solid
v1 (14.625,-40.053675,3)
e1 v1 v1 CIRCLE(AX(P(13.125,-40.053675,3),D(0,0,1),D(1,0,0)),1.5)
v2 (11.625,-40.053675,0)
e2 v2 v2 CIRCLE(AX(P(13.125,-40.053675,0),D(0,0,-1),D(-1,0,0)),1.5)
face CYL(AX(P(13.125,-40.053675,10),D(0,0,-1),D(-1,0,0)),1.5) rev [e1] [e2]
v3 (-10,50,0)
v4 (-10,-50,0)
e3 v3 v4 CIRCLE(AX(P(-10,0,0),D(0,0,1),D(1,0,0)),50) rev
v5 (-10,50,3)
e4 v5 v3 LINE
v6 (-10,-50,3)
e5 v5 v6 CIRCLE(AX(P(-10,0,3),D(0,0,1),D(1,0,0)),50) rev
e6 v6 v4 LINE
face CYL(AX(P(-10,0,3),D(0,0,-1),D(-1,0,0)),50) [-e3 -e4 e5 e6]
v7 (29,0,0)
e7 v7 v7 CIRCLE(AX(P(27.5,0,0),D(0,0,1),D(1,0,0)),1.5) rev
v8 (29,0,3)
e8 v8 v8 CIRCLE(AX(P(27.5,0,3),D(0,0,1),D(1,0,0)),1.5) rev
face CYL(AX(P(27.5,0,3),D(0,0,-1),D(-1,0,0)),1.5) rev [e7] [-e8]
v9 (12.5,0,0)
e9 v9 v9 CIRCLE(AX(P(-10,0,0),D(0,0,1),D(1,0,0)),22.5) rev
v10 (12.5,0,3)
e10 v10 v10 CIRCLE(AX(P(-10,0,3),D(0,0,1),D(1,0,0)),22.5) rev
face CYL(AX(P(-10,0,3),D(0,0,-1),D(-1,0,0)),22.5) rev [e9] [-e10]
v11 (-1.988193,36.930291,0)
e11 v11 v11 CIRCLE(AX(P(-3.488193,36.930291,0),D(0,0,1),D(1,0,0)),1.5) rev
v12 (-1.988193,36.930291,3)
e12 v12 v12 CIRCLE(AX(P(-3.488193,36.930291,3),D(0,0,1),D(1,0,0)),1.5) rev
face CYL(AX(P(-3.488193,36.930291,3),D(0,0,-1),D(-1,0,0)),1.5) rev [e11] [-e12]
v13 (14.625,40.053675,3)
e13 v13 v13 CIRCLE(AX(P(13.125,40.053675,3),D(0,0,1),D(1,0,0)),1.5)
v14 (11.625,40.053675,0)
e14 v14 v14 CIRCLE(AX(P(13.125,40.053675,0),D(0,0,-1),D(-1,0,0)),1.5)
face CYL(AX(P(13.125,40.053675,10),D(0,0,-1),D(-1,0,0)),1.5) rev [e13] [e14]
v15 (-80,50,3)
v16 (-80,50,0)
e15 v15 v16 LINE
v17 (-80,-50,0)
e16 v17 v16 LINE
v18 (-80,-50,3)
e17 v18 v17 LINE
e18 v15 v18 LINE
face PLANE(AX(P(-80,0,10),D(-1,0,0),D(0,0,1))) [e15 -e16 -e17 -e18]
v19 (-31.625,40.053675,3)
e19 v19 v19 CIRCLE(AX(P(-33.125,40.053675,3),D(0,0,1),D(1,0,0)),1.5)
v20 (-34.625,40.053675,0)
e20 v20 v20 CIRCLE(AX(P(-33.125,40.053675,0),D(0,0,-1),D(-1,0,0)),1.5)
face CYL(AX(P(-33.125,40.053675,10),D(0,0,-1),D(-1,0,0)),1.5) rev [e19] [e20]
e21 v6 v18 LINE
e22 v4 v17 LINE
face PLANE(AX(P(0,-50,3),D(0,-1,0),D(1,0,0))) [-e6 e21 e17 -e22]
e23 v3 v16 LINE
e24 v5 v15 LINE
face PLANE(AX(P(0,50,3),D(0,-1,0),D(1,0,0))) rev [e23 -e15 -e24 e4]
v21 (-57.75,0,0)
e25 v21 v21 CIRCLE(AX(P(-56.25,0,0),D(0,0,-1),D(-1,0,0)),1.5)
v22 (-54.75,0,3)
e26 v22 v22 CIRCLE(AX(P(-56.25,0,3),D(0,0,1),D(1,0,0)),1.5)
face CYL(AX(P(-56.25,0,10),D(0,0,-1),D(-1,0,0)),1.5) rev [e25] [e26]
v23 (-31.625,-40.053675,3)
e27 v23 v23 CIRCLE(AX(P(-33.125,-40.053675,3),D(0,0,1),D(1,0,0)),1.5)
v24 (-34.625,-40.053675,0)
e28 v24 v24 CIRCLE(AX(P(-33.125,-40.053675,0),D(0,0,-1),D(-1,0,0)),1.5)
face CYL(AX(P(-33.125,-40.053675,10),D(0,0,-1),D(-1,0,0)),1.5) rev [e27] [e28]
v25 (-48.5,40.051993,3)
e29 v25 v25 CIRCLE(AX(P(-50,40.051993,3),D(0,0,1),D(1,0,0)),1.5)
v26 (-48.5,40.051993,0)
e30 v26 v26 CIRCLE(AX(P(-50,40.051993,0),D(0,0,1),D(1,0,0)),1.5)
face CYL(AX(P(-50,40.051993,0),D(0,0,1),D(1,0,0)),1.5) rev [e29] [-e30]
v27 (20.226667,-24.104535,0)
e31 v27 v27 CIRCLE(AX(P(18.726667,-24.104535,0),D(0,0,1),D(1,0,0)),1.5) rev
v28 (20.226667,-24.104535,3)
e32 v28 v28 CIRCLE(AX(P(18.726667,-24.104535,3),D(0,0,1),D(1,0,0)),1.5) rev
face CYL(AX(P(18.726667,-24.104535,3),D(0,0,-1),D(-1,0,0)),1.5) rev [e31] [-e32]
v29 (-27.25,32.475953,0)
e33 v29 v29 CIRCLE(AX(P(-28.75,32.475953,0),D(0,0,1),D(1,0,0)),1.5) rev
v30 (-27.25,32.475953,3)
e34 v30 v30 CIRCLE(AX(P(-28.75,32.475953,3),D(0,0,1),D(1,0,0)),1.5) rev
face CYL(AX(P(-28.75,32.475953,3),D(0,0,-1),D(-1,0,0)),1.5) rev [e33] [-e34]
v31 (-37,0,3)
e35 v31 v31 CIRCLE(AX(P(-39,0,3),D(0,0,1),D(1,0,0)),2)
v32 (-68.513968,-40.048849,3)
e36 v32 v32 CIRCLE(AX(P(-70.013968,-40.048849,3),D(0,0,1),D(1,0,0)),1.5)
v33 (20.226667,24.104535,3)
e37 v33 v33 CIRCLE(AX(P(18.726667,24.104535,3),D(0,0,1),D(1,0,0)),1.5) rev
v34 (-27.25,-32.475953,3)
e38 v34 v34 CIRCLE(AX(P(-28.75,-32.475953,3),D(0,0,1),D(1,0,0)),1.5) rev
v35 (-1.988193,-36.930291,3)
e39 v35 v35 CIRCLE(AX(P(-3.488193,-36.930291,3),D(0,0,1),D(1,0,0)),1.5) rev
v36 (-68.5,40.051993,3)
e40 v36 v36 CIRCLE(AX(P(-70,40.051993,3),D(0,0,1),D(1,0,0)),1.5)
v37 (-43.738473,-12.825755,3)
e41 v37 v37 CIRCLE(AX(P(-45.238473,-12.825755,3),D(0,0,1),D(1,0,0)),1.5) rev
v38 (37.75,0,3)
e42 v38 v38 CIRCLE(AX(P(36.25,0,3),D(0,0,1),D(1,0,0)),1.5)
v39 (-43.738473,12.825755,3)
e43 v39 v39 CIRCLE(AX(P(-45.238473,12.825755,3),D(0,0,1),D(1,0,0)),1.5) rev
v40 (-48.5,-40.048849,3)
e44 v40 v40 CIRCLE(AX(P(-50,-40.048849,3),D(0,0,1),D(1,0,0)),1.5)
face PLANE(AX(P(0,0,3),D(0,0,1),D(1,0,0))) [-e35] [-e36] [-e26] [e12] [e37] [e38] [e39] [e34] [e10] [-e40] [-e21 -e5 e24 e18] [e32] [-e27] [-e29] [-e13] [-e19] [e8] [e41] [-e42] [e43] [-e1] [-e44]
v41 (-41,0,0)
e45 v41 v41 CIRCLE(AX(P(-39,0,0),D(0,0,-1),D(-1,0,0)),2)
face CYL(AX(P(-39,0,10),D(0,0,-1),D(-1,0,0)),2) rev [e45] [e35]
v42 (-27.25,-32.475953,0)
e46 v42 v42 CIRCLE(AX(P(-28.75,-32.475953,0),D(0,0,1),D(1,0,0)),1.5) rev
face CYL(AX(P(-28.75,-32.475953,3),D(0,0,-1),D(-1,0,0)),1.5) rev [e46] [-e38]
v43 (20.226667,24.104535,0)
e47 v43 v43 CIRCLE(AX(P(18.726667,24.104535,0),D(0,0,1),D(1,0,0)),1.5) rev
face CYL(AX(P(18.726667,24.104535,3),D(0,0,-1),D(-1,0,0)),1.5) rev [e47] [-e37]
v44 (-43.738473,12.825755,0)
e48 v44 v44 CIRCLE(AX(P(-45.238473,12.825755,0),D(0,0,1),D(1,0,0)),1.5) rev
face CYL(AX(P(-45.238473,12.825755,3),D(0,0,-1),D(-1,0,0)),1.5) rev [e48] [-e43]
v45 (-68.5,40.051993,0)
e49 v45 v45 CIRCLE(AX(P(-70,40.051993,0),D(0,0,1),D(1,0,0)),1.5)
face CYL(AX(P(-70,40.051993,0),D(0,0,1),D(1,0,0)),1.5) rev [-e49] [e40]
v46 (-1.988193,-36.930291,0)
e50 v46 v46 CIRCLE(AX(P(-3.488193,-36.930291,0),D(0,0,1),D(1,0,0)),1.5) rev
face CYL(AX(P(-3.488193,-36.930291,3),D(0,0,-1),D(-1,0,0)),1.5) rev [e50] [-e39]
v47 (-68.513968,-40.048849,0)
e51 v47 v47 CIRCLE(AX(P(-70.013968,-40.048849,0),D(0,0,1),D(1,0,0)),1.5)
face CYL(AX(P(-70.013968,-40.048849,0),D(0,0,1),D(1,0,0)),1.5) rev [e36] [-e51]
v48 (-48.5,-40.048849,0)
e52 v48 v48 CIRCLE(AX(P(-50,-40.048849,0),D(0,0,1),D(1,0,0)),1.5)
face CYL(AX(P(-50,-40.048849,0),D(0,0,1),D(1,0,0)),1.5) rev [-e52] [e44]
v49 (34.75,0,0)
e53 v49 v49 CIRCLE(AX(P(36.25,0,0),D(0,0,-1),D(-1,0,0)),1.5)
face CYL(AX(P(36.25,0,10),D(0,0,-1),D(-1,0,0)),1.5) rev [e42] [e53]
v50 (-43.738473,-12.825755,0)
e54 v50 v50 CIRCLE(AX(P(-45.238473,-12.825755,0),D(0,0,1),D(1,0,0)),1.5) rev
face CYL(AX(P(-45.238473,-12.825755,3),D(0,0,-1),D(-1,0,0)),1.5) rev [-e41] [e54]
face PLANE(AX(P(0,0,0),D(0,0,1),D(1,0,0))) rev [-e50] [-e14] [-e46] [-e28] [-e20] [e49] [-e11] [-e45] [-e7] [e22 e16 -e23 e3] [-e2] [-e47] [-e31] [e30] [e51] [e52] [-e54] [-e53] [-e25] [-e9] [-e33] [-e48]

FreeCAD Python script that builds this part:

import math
import FreeCAD as App
import Part
import Sketcher
from FreeCAD import Vector
Q = App.Units.Quantity

doc = App.newDocument("Part")
body = doc.addObject("PartDesign::Body", "Body")

# Sketch on XY plane
sketch1 = doc.addObject("Sketcher::SketchObject", "Sketch")
body.addObject(sketch1)
sketch1.AttachmentSupport = (doc.XY_Plane, [""])
sketch1.MapMode = "FlatFace"
sketch1.addGeometry(Part.LineSegment(Vector(-10, 50, 0), Vector(-350, 50, 0)), False)
sketch1.addGeometry(Part.ArcOfCircle(Part.Circle(Vector(-350, 0, 0), Vector(0, 0, 1), 50), math.radians(90), math.radians(270)), False)
sketch1.addGeometry(Part.LineSegment(Vector(-350, -50, 0), Vector(-10, -50, 0)), False)
sketch1.addGeometry(Part.ArcOfCircle(Part.Circle(Vector(-10, 0, 0), Vector(0, 0, 1), 50), math.radians(-90), math.radians(90)), False)
sketch1.addGeometry(Part.Circle(Vector(-356.5, -36.9, 0), Vector(0, 0, 1), 1.5), False)
sketch1.addGeometry(Part.Circle(Vector(-331.2, -32.5, 0), Vector(0, 0, 1), 1.5), False)
sketch1.addGeometry(Part.Circle(Vector(-378.7, -24.1, 0), Vector(0, 0, 1), 1.5), False)
sketch1.addGeometry(Part.Circle(Vector(-314.8, -12.8, 0), Vector(0, 0, 1), 1.5), False)
sketch1.addGeometry(Part.Circle(Vector(-28.8, -32.5, 0), Vector(0, 0, 1), 1.5), False)
sketch1.addGeometry(Part.Circle(Vector(-3.5, -36.9, 0), Vector(0, 0, 1), 1.5), False)
sketch1.addGeometry(Part.Circle(Vector(18.7, -24.1, 0), Vector(0, 0, 1), 1.5), False)
sketch1.addGeometry(Part.Circle(Vector(-45.2, -12.8, 0), Vector(0, 0, 1), 1.5), False)
sketch1.addGeometry(Part.Circle(Vector(-387.5, 0, 0), Vector(0, 0, 1), 1.5), False)
sketch1.addGeometry(Part.Circle(Vector(-350, 0, 0), Vector(0, 0, 1), 22.5), False)
sketch1.addGeometry(Part.Circle(Vector(-314.8, 12.8, 0), Vector(0, 0, 1), 1.5), False)
sketch1.addGeometry(Part.Circle(Vector(-378.7, 24.1, 0), Vector(0, 0, 1), 1.5), False)
sketch1.addGeometry(Part.Circle(Vector(-356.5, 36.9, 0), Vector(0, 0, 1), 1.5), False)
sketch1.addGeometry(Part.Circle(Vector(-331.2, 32.5, 0), Vector(0, 0, 1), 1.5), False)
sketch1.addGeometry(Part.Circle(Vector(-10, 0, 0), Vector(0, 0, 1), 22.5), False)
sketch1.addGeometry(Part.Circle(Vector(27.5, 0, 0), Vector(0, 0, 1), 1.5), False)
sketch1.addGeometry(Part.Circle(Vector(-45.2, 12.8, 0), Vector(0, 0, 1), 1.5), False)
sketch1.addGeometry(Part.Circle(Vector(18.7, 24.1, 0), Vector(0, 0, 1), 1.5), False)
sketch1.addGeometry(Part.Circle(Vector(-28.8, 32.5, 0), Vector(0, 0, 1), 1.5), False)
sketch1.addGeometry(Part.Circle(Vector(-3.5, 36.9, 0), Vector(0, 0, 1), 1.5), False)
sketch1.addConstraint(Sketcher.Constraint("Tangent", 0, 2, 1, 1))
sketch1.addConstraint(Sketcher.Constraint("Tangent", 1, 2, 2, 1))
sketch1.addConstraint(Sketcher.Constraint("Tangent", 2, 2, 3, 1))
sketch1.addConstraint(Sketcher.Constraint("Tangent", 3, 2, 0, 1))
sketch1.addConstraint(Sketcher.Constraint("Horizontal", 0))
sketch1.addConstraint(Sketcher.Constraint("Horizontal", 2))
sketch1.addConstraint(Sketcher.Constraint("Coincident", 13, 3, 1, 3))
sketch1.addConstraint(Sketcher.Constraint("Coincident", 18, 3, 3, 3))
sketch1.addConstraint(Sketcher.Constraint("Equal", 4, 5))
sketch1.addConstraint(Sketcher.Constraint("Equal", 5, 6))
sketch1.addConstraint(Sketcher.Constraint("Equal", 6, 7))
sketch1.addConstraint(Sketcher.Constraint("Equal", 7, 8))
sketch1.addConstraint(Sketcher.Constraint("Equal", 8, 9))
sketch1.addConstraint(Sketcher.Constraint("Equal", 9, 10))
sketch1.addConstraint(Sketcher.Constraint("Equal", 10, 11))
sketch1.addConstraint(Sketcher.Constraint("Equal", 11, 12))
sketch1.addConstraint(Sketcher.Constraint("Equal", 12, 14))
sketch1.addConstraint(Sketcher.Constraint("Equal", 14, 15))
sketch1.addConstraint(Sketcher.Constraint("Equal", 15, 16))
sketch1.addConstraint(Sketcher.Constraint("Equal", 16, 17))
sketch1.addConstraint(Sketcher.Constraint("Equal", 13, 18))
sketch1.addConstraint(Sketcher.Constraint("Equal", 17, 19))
sketch1.addConstraint(Sketcher.Constraint("Equal", 19, 20))
sketch1.addConstraint(Sketcher.Constraint("Equal", 20, 21))
sketch1.addConstraint(Sketcher.Constraint("Equal", 21, 22))
sketch1.addConstraint(Sketcher.Constraint("Equal", 22, 23))
sketch1.addConstraint(Sketcher.Constraint("Symmetric", 7, 3, 14, 3, -1))
sketch1.addConstraint(Sketcher.Constraint("Symmetric", 6, 3, 15, 3, -1))
sketch1.addConstraint(Sketcher.Constraint("Symmetric", 4, 3, 16, 3, -1))
sketch1.addConstraint(Sketcher.Constraint("Symmetric", 5, 3, 17, 3, -1))
sketch1.addConstraint(Sketcher.Constraint("Symmetric", 11, 3, 20, 3, -1))
sketch1.addConstraint(Sketcher.Constraint("Symmetric", 10, 3, 21, 3, -1))
sketch1.addConstraint(Sketcher.Constraint("Symmetric", 8, 3, 22, 3, -1))
sketch1.addConstraint(Sketcher.Constraint("Symmetric", 9, 3, 23, 3, -1))
sketch1.addConstraint(Sketcher.Constraint("PointOnObject", 1, 3, -1))
sketch1.addConstraint(Sketcher.Constraint("PointOnObject", 12, 3, -1))
sketch1.addConstraint(Sketcher.Constraint("PointOnObject", 19, 3, -1))
sketch1.addConstraint(Sketcher.Constraint("Horizontal", 5, 3, 8, 3))
sketch1.addConstraint(Sketcher.Constraint("Horizontal", 4, 3, 9, 3))
sketch1.addConstraint(Sketcher.Constraint("Horizontal", 6, 3, 10, 3))
sketch1.addConstraint(Sketcher.Constraint("Horizontal", 7, 3, 11, 3))
sketch1.addConstraint(Sketcher.Constraint("Diameter", 4, Q("3 mm")))
sketch1.addConstraint(Sketcher.Constraint("Diameter", 13, Q("45 mm")))
sketch1.addConstraint(Sketcher.Constraint("Radius", 1, Q("50 mm")))
sketch1.addConstraint(Sketcher.Constraint("DistanceX", 0, 2, 0, 1, Q("340 mm")))
sketch1.addConstraint(Sketcher.Constraint("DistanceX", 1, 3, -1, 1, Q("350 mm")))
sketch1.addConstraint(Sketcher.Constraint("DistanceX", 12, 3, -1, 1, Q("387.5 mm")))
sketch1.addConstraint(Sketcher.Constraint("DistanceX", -1, 1, 19, 3, Q("27.5 mm")))
sketch1.addConstraint(Sketcher.Constraint("DistanceX", 5, 3, 8, 3, Q("302.5 mm")))
sketch1.addConstraint(Sketcher.Constraint("DistanceX", 5, 3, -1, 1, Q("331.25 mm")))
sketch1.addConstraint(Sketcher.Constraint("DistanceY", 4, 3, -1, 1, Q("36.930291 mm")))
sketch1.addConstraint(Sketcher.Constraint("DistanceY", 4, 3, 5, 3, Q("4.454338 mm")))
sketch1.addConstraint(Sketcher.Constraint("DistanceX", 6, 3, 4, 3, Q("22.21486 mm")))
sketch1.addConstraint(Sketcher.Constraint("DistanceX", 4, 3, 7, 3, Q("41.75028 mm")))
sketch1.addConstraint(Sketcher.Constraint("DistanceY", 6, 3, 7, 3, Q("11.27878 mm")))
sketch1.addConstraint(Sketcher.Constraint("DistanceX", 9, 3, 10, 3, Q("22.21486 mm")))
sketch1.addConstraint(Sketcher.Constraint("DistanceX", 11, 3, 9, 3, Q("41.75028 mm")))
sketch1.addConstraint(Sketcher.Constraint("DistanceY", 7, 3, 14, 3, Q("25.651511 mm")))
sketch1.addConstraint(Sketcher.Constraint("DistanceX", 4, 3, -1, 1, Q("356.511807 mm")))
sketch1.addConstraint(Sketcher.Constraint("DistanceX", 9, 3, -1, 1, Q("3.488193 mm")))
pad1 = doc.addObject("PartDesign::Pad", "Pad")
body.addObject(pad1)
pad1.Profile = sketch1
pad1.Length = 3

# Sketch on XY plane
sketch2 = doc.addObject("Sketcher::SketchObject", "Sketch001")
body.addObject(sketch2)
sketch2.AttachmentSupport = (doc.XY_Plane, [""])
sketch2.MapMode = "FlatFace"
sketch2.addGeometry(Part.Circle(Vector(-39, 0, 0), Vector(0, 0, 1), 2), False)
sketch2.addGeometry(Part.Circle(Vector(-321, 0, 0), Vector(0, 0, 1), 1.8), False)
sketch2.addConstraint(Sketcher.Constraint("PointOnObject", 0, 3, -1))
sketch2.addConstraint(Sketcher.Constraint("PointOnObject", 1, 3, -1))
sketch2.addConstraint(Sketcher.Constraint("Diameter", 0, Q("4 mm")))
sketch2.addConstraint(Sketcher.Constraint("Diameter", 1, Q("3.5 mm")))
sketch2.addConstraint(Sketcher.Constraint("DistanceX", 0, 3, -1, 1, Q("39 mm")))
sketch2.addConstraint(Sketcher.Constraint("DistanceX", 1, 3, -1, 1, Q("321 mm")))
pocket1 = doc.addObject("PartDesign::Pocket", "Pocket")
body.addObject(pocket1)
pocket1.Profile = sketch2
pocket1.Length = 10
pocket1.Reversed = True

# Sketch on XY plane
sketch3 = doc.addObject("Sketcher::SketchObject", "Sketch002")
body.addObject(sketch3)
sketch3.AttachmentSupport = (doc.XY_Plane, [""])
sketch3.MapMode = "FlatFace"
sketch3.addGeometry(Part.LineSegment(Vector(-80, -50, 0), Vector(-350, -50, 0)), False)
sketch3.addGeometry(Part.ArcOfCircle(Part.Circle(Vector(-350, 0, 0), Vector(0, 0, 1), 50), math.radians(90), math.radians(270)), False)
sketch3.addGeometry(Part.LineSegment(Vector(-350, 50, 0), Vector(-80, 50, 0)), False)
sketch3.addGeometry(Part.LineSegment(Vector(-80, 50, 0), Vector(-80, -50, 0)), False)
sketch3.addGeometry(Part.Circle(Vector(-331.2, -32.5, 0), Vector(0, 0, 1), 1.5), False)
sketch3.addGeometry(Part.Circle(Vector(-314.8, -12.8, 0), Vector(0, 0, 1), 1.5), False)
sketch3.addGeometry(Part.Circle(Vector(-356.5, -36.9, 0), Vector(0, 0, 1), 1.5), False)
sketch3.addGeometry(Part.Circle(Vector(-378.7, -24.1, 0), Vector(0, 0, 1), 1.5), False)
sketch3.addGeometry(Part.Circle(Vector(-321, 0, 0), Vector(0, 0, 1), 1.8), False)
sketch3.addGeometry(Part.Circle(Vector(-314.8, 12.8, 0), Vector(0, 0, 1), 1.5), False)
sketch3.addGeometry(Part.Circle(Vector(-350, 0, 0), Vector(0, 0, 1), 22.5), False)
sketch3.addGeometry(Part.Circle(Vector(-331.2, 32.5, 0), Vector(0, 0, 1), 1.5), False)
sketch3.addGeometry(Part.Circle(Vector(-387.5, 0, 0), Vector(0, 0, 1), 1.5), False)
sketch3.addGeometry(Part.Circle(Vector(-356.5, 36.9, 0), Vector(0, 0, 1), 1.5), False)
sketch3.addGeometry(Part.Circle(Vector(-378.7, 24.1, 0), Vector(0, 0, 1), 1.5), False)
sketch3.addConstraint(Sketcher.Constraint("Tangent", 0, 2, 1, 2))
sketch3.addConstraint(Sketcher.Constraint("Tangent", 1, 1, 2, 1))
sketch3.addConstraint(Sketcher.Constraint("Coincident", 2, 2, 3, 1))
sketch3.addConstraint(Sketcher.Constraint("Coincident", 3, 2, 0, 1))
sketch3.addConstraint(Sketcher.Constraint("Horizontal", 0))
sketch3.addConstraint(Sketcher.Constraint("Horizontal", 2))
sketch3.addConstraint(Sketcher.Constraint("Vertical", 3))
sketch3.addConstraint(Sketcher.Constraint("Coincident", 10, 3, 1, 3))
sketch3.addConstraint(Sketcher.Constraint("Equal", 4, 5))
sketch3.addConstraint(Sketcher.Constraint("Equal", 5, 6))
sketch3.addConstraint(Sketcher.Constraint("Equal", 6, 7))
sketch3.addConstraint(Sketcher.Constraint("Equal", 7, 9))
sketch3.addConstraint(Sketcher.Constraint("Equal", 9, 11))
sketch3.addConstraint(Sketcher.Constraint("Equal", 11, 12))
sketch3.addConstraint(Sketcher.Constraint("Equal", 12, 13))
sketch3.addConstraint(Sketcher.Constraint("Equal", 13, 14))
sketch3.addConstraint(Sketcher.Constraint("Symmetric", 5, 3, 9, 3, -1))
sketch3.addConstraint(Sketcher.Constraint("Symmetric", 4, 3, 11, 3, -1))
sketch3.addConstraint(Sketcher.Constraint("Symmetric", 6, 3, 13, 3, -1))
sketch3.addConstraint(Sketcher.Constraint("Symmetric", 7, 3, 14, 3, -1))
sketch3.addConstraint(Sketcher.Constraint("PointOnObject", 1, 3, -1))
sketch3.addConstraint(Sketcher.Constraint("PointOnObject", 8, 3, -1))
sketch3.addConstraint(Sketcher.Constraint("PointOnObject", 12, 3, -1))
sketch3.addConstraint(Sketcher.Constraint("Diameter", 4, Q("3 mm")))
sketch3.addConstraint(Sketcher.Constraint("Diameter", 10, Q("45 mm")))
sketch3.addConstraint(Sketcher.Constraint("Radius", 1, Q("50 mm")))
sketch3.addConstraint(Sketcher.Constraint("Diameter", 8, Q("3.5 mm")))
sketch3.addConstraint(Sketcher.Constraint("DistanceX", 0, 2, 0, 1, Q("270 mm")))
sketch3.addConstraint(Sketcher.Constraint("DistanceX", 1, 3, -1, 1, Q("350 mm")))
sketch3.addConstraint(Sketcher.Constraint("DistanceX", 8, 3, -1, 1, Q("321 mm")))
sketch3.addConstraint(Sketcher.Constraint("DistanceX", 12, 3, -1, 1, Q("387.5 mm")))
sketch3.addConstraint(Sketcher.Constraint("DistanceX", 4, 3, -1, 1, Q("331.25 mm")))
sketch3.addConstraint(Sketcher.Constraint("DistanceY", 6, 3, -1, 1, Q("36.930291 mm")))
sketch3.addConstraint(Sketcher.Constraint("DistanceY", 6, 3, 4, 3, Q("4.454338 mm")))
sketch3.addConstraint(Sketcher.Constraint("DistanceX", 6, 3, 5, 3, Q("41.75028 mm")))
sketch3.addConstraint(Sketcher.Constraint("DistanceX", 7, 3, 6, 3, Q("22.21486 mm")))
sketch3.addConstraint(Sketcher.Constraint("DistanceY", 7, 3, 5, 3, Q("11.27878 mm")))
sketch3.addConstraint(Sketcher.Constraint("DistanceY", 5, 3, 9, 3, Q("25.651511 mm")))
sketch3.addConstraint(Sketcher.Constraint("DistanceX", 5, 3, -1, 1, Q("314.761527 mm")))
pocket2 = doc.addObject("PartDesign::Pocket", "Pocket001")
body.addObject(pocket2)
pocket2.Profile = sketch3
pocket2.Length = 10
pocket2.Reversed = True

# Sketch on XY plane
sketch4 = doc.addObject("Sketcher::SketchObject", "Sketch003")
body.addObject(sketch4)
sketch4.AttachmentSupport = (doc.XY_Plane, [""])
sketch4.MapMode = "FlatFace"
sketch4.addGeometry(Part.Circle(Vector(36.2, 0, 0), Vector(0, 0, 1), 1.5), False)
sketch4.addGeometry(Part.Circle(Vector(13.1, 40.1, 0), Vector(0, 0, 1), 1.5), False)
sketch4.addGeometry(Part.Circle(Vector(-33.1, 40.1, 0), Vector(0, 0, 1), 1.5), False)
sketch4.addGeometry(Part.Circle(Vector(-56.2, 0, 0), Vector(0, 0, 1), 1.5), False)
sketch4.addGeometry(Part.Circle(Vector(-33.1, -40.1, 0), Vector(0, 0, 1), 1.5), False)
sketch4.addGeometry(Part.Circle(Vector(13.1, -40.1, 0), Vector(0, 0, 1), 1.5), False)
sketch4.addConstraint(Sketcher.Constraint("Equal", 0, 1))
sketch4.addConstraint(Sketcher.Constraint("Equal", 1, 2))
sketch4.addConstraint(Sketcher.Constraint("Equal", 2, 3))
sketch4.addConstraint(Sketcher.Constraint("Equal", 3, 4))
sketch4.addConstraint(Sketcher.Constraint("Equal", 4, 5))
sketch4.addConstraint(Sketcher.Constraint("Symmetric", 2, 3, 4, 3, -1))
sketch4.addConstraint(Sketcher.Constraint("Symmetric", 1, 3, 5, 3, -1))
sketch4.addConstraint(Sketcher.Constraint("PointOnObject", 0, 3, -1))
sketch4.addConstraint(Sketcher.Constraint("PointOnObject", 3, 3, -1))
sketch4.addConstraint(Sketcher.Constraint("Horizontal", 1, 3, 2, 3))
sketch4.addConstraint(Sketcher.Constraint("Diameter", 0, Q("3 mm")))
sketch4.addConstraint(Sketcher.Constraint("DistanceX", 3, 3, 0, 3, Q("92.5 mm")))
sketch4.addConstraint(Sketcher.Constraint("DistanceX", -1, 1, 0, 3, Q("36.25 mm")))
sketch4.addConstraint(Sketcher.Constraint("DistanceX", 2, 3, 1, 3, Q("46.25 mm")))
sketch4.addConstraint(Sketcher.Constraint("DistanceX", -1, 1, 1, 3, Q("13.125 mm")))
sketch4.addConstraint(Sketcher.Constraint("DistanceY", 4, 3, 2, 3, Q("80.10735 mm")))
pocket3 = doc.addObject("PartDesign::Pocket", "Pocket002")
body.addObject(pocket3)
pocket3.Profile = sketch4
pocket3.Length = 10
pocket3.Reversed = True

# Sketch on XY plane
sketch5 = doc.addObject("Sketcher::SketchObject", "Sketch004")
body.addObject(sketch5)
sketch5.AttachmentSupport = (doc.XY_Plane, [""])
sketch5.MapMode = "FlatFace"
sketch5.AttachmentOffset = App.Placement(Vector(0, 0, 3), App.Rotation())
sketch5.addGeometry(Part.Circle(Vector(-70, 40.1, 0), Vector(0, 0, 1), 1.5), False)
sketch5.addGeometry(Part.Circle(Vector(-50, 40.1, 0), Vector(0, 0, 1), 1.5), False)
sketch5.addGeometry(Part.Circle(Vector(-70, -40, 0), Vector(0, 0, 1), 1.5), False)
sketch5.addGeometry(Part.Circle(Vector(-50, -40, 0), Vector(0, 0, 1), 1.5), False)
sketch5.addConstraint(Sketcher.Constraint("Equal", 0, 1))
sketch5.addConstraint(Sketcher.Constraint("Equal", 1, 2))
sketch5.addConstraint(Sketcher.Constraint("Equal", 2, 3))
sketch5.addConstraint(Sketcher.Constraint("Horizontal", 0, 3, 1, 3))
sketch5.addConstraint(Sketcher.Constraint("Horizontal", 2, 3, 3, 3))
sketch5.addConstraint(Sketcher.Constraint("Vertical", 1, 3, 3, 3))
sketch5.addConstraint(Sketcher.Constraint("Diameter", 0, Q("3 mm")))
sketch5.addConstraint(Sketcher.Constraint("DistanceX", 0, 3, -1, 1, Q("70 mm")))
sketch5.addConstraint(Sketcher.Constraint("DistanceX", 1, 3, -1, 1, Q("50 mm")))
sketch5.addConstraint(Sketcher.Constraint("DistanceX", 2, 3, -1, 1, Q("70.013968 mm")))
sketch5.addConstraint(Sketcher.Constraint("DistanceY", 2, 3, -1, 1, Q("40.048849 mm")))
sketch5.addConstraint(Sketcher.Constraint("DistanceY", -1, 1, 0, 3, Q("40.051993 mm")))
pocket4 = doc.addObject("PartDesign::Pocket", "Pocket003")
body.addObject(pocket4)
pocket4.Profile = sketch5
pocket4.Type = "ThroughAll"

doc.recompute()
